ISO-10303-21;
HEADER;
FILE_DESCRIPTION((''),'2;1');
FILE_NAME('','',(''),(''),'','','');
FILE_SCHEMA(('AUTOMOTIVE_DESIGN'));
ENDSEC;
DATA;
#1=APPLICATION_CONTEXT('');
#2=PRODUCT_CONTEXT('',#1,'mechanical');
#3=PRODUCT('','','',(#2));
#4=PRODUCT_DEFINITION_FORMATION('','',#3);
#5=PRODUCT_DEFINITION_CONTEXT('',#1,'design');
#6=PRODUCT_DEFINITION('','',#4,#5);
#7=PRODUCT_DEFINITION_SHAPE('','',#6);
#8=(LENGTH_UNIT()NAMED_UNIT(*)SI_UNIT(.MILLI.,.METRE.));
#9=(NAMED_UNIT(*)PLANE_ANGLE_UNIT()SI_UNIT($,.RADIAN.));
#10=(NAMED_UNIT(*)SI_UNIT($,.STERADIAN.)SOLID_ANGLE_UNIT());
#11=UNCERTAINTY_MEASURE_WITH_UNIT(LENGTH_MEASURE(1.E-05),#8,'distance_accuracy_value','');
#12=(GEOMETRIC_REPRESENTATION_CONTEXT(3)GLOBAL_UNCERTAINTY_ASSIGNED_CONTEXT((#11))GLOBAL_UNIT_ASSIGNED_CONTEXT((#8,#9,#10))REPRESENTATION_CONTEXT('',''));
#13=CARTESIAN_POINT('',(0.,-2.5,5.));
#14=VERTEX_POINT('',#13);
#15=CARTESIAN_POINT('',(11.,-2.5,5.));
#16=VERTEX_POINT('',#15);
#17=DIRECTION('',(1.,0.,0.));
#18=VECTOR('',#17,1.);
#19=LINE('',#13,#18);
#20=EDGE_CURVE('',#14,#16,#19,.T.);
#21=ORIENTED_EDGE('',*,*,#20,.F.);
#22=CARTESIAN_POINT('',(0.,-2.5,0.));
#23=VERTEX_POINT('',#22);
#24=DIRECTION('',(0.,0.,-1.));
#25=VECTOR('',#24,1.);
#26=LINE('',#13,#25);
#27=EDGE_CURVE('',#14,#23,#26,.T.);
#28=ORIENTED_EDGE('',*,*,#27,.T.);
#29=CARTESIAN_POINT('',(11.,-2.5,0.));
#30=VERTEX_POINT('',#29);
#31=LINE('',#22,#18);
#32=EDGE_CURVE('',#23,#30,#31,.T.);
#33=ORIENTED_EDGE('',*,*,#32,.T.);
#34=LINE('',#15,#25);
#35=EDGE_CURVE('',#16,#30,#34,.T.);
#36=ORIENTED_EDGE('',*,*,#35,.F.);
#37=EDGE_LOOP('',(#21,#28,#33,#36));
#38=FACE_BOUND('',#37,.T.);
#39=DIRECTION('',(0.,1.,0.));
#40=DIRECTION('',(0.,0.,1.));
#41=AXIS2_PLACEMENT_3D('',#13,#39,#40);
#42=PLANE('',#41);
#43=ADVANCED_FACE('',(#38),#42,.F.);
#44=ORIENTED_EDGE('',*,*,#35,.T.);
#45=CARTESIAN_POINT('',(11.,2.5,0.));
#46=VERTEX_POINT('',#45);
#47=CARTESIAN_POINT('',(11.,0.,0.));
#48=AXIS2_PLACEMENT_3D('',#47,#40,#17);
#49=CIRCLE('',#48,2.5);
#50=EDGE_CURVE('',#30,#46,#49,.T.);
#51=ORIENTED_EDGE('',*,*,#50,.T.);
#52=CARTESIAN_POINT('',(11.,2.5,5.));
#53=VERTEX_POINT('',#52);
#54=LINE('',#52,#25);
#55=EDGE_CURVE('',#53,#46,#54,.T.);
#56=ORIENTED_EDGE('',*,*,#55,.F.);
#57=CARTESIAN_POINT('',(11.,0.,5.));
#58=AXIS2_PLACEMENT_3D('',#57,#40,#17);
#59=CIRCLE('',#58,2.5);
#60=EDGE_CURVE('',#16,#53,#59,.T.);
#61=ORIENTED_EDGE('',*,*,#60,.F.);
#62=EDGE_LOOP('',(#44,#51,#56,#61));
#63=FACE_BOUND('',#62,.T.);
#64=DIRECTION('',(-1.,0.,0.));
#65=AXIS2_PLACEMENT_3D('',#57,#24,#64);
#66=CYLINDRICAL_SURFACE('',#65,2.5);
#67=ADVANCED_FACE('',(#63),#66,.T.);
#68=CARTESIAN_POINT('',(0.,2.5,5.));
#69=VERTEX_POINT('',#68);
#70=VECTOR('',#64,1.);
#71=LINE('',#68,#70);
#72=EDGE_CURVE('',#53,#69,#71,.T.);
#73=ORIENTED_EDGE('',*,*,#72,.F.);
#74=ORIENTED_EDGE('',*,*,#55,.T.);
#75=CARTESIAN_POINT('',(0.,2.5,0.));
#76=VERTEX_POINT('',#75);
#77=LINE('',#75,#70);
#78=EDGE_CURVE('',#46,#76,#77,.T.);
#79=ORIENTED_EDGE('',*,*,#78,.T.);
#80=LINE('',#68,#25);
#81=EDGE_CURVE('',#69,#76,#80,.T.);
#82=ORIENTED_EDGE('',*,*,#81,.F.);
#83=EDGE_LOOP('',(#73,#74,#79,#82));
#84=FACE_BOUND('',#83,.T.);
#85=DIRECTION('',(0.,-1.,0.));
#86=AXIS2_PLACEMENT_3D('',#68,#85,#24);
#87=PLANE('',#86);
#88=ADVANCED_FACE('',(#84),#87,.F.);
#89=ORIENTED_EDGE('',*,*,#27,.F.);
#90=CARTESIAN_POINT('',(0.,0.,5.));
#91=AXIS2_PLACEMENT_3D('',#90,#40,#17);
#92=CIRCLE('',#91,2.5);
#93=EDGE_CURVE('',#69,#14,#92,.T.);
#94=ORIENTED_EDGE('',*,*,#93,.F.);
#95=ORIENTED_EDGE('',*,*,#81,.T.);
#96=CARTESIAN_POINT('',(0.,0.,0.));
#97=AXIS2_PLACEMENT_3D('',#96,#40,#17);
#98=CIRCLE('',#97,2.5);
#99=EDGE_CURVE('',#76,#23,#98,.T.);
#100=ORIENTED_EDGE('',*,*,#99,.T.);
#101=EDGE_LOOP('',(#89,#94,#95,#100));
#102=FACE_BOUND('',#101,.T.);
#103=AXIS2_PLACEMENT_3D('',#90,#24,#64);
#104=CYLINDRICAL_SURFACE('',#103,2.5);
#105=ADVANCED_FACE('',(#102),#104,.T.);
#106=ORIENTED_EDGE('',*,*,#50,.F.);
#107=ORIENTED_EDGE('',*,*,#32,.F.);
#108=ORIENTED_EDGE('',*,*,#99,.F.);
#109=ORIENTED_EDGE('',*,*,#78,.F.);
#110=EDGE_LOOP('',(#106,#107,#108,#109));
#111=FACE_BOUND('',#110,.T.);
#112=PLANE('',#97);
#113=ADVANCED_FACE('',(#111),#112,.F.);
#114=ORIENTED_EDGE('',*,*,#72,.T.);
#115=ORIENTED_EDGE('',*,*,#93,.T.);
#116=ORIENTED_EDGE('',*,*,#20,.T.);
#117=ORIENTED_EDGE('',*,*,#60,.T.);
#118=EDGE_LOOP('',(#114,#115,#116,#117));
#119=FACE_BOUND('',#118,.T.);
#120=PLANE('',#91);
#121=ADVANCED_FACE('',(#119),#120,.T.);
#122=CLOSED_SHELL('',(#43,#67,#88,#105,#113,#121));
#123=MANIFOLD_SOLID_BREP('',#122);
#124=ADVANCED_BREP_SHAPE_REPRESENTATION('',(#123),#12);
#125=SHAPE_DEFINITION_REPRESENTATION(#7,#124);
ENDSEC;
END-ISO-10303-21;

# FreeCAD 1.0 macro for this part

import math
import FreeCAD as App
import Part
import Sketcher
from FreeCAD import Vector

doc = App.newDocument("Part")
body = doc.addObject("PartDesign::Body", "Body")

# Sketch on XY plane
sketch1 = body.newObject("Sketcher::SketchObject", "Sketch")
sketch1.AttachmentSupport = (doc.getObject("XY_Plane"), [""])
sketch1.MapMode = "FlatFace"
sketch1.addGeometry([
    Part.LineSegment(Vector(11, 2.5, 0), Vector(0, 2.5, 0)),
    Part.ArcOfCircle(Part.Circle(Vector(0, 0, 0), Vector(0, 0, 1), 2.5), math.radians(90), math.radians(270)),
    Part.LineSegment(Vector(0, -2.5, 0), Vector(11, -2.5, 0)),
    Part.ArcOfCircle(Part.Circle(Vector(11, 0, 0), Vector(0, 0, 1), 2.5), math.radians(-90), math.radians(90)),
], False)
sketch1.addConstraint([
    Sketcher.Constraint("Tangent", 0, 2, 1, 1),
    Sketcher.Constraint("Tangent", 1, 2, 2, 1),
    Sketcher.Constraint("Tangent", 2, 2, 3, 1),
    Sketcher.Constraint("Tangent", 3, 2, 0, 1),
    Sketcher.Constraint("Horizontal", 0),
    Sketcher.Constraint("Horizontal", 2),
    Sketcher.Constraint("Coincident", 1, 3, -1, 1),
    Sketcher.Constraint("Radius", 1, 2.5),
    Sketcher.Constraint("DistanceX", 0, 2, 0, 1, 11.0),
])
pad1 = body.newObject("PartDesign::Pad", "Pad")
pad1.Profile = sketch1
pad1.Length = 5

doc.recompute()
